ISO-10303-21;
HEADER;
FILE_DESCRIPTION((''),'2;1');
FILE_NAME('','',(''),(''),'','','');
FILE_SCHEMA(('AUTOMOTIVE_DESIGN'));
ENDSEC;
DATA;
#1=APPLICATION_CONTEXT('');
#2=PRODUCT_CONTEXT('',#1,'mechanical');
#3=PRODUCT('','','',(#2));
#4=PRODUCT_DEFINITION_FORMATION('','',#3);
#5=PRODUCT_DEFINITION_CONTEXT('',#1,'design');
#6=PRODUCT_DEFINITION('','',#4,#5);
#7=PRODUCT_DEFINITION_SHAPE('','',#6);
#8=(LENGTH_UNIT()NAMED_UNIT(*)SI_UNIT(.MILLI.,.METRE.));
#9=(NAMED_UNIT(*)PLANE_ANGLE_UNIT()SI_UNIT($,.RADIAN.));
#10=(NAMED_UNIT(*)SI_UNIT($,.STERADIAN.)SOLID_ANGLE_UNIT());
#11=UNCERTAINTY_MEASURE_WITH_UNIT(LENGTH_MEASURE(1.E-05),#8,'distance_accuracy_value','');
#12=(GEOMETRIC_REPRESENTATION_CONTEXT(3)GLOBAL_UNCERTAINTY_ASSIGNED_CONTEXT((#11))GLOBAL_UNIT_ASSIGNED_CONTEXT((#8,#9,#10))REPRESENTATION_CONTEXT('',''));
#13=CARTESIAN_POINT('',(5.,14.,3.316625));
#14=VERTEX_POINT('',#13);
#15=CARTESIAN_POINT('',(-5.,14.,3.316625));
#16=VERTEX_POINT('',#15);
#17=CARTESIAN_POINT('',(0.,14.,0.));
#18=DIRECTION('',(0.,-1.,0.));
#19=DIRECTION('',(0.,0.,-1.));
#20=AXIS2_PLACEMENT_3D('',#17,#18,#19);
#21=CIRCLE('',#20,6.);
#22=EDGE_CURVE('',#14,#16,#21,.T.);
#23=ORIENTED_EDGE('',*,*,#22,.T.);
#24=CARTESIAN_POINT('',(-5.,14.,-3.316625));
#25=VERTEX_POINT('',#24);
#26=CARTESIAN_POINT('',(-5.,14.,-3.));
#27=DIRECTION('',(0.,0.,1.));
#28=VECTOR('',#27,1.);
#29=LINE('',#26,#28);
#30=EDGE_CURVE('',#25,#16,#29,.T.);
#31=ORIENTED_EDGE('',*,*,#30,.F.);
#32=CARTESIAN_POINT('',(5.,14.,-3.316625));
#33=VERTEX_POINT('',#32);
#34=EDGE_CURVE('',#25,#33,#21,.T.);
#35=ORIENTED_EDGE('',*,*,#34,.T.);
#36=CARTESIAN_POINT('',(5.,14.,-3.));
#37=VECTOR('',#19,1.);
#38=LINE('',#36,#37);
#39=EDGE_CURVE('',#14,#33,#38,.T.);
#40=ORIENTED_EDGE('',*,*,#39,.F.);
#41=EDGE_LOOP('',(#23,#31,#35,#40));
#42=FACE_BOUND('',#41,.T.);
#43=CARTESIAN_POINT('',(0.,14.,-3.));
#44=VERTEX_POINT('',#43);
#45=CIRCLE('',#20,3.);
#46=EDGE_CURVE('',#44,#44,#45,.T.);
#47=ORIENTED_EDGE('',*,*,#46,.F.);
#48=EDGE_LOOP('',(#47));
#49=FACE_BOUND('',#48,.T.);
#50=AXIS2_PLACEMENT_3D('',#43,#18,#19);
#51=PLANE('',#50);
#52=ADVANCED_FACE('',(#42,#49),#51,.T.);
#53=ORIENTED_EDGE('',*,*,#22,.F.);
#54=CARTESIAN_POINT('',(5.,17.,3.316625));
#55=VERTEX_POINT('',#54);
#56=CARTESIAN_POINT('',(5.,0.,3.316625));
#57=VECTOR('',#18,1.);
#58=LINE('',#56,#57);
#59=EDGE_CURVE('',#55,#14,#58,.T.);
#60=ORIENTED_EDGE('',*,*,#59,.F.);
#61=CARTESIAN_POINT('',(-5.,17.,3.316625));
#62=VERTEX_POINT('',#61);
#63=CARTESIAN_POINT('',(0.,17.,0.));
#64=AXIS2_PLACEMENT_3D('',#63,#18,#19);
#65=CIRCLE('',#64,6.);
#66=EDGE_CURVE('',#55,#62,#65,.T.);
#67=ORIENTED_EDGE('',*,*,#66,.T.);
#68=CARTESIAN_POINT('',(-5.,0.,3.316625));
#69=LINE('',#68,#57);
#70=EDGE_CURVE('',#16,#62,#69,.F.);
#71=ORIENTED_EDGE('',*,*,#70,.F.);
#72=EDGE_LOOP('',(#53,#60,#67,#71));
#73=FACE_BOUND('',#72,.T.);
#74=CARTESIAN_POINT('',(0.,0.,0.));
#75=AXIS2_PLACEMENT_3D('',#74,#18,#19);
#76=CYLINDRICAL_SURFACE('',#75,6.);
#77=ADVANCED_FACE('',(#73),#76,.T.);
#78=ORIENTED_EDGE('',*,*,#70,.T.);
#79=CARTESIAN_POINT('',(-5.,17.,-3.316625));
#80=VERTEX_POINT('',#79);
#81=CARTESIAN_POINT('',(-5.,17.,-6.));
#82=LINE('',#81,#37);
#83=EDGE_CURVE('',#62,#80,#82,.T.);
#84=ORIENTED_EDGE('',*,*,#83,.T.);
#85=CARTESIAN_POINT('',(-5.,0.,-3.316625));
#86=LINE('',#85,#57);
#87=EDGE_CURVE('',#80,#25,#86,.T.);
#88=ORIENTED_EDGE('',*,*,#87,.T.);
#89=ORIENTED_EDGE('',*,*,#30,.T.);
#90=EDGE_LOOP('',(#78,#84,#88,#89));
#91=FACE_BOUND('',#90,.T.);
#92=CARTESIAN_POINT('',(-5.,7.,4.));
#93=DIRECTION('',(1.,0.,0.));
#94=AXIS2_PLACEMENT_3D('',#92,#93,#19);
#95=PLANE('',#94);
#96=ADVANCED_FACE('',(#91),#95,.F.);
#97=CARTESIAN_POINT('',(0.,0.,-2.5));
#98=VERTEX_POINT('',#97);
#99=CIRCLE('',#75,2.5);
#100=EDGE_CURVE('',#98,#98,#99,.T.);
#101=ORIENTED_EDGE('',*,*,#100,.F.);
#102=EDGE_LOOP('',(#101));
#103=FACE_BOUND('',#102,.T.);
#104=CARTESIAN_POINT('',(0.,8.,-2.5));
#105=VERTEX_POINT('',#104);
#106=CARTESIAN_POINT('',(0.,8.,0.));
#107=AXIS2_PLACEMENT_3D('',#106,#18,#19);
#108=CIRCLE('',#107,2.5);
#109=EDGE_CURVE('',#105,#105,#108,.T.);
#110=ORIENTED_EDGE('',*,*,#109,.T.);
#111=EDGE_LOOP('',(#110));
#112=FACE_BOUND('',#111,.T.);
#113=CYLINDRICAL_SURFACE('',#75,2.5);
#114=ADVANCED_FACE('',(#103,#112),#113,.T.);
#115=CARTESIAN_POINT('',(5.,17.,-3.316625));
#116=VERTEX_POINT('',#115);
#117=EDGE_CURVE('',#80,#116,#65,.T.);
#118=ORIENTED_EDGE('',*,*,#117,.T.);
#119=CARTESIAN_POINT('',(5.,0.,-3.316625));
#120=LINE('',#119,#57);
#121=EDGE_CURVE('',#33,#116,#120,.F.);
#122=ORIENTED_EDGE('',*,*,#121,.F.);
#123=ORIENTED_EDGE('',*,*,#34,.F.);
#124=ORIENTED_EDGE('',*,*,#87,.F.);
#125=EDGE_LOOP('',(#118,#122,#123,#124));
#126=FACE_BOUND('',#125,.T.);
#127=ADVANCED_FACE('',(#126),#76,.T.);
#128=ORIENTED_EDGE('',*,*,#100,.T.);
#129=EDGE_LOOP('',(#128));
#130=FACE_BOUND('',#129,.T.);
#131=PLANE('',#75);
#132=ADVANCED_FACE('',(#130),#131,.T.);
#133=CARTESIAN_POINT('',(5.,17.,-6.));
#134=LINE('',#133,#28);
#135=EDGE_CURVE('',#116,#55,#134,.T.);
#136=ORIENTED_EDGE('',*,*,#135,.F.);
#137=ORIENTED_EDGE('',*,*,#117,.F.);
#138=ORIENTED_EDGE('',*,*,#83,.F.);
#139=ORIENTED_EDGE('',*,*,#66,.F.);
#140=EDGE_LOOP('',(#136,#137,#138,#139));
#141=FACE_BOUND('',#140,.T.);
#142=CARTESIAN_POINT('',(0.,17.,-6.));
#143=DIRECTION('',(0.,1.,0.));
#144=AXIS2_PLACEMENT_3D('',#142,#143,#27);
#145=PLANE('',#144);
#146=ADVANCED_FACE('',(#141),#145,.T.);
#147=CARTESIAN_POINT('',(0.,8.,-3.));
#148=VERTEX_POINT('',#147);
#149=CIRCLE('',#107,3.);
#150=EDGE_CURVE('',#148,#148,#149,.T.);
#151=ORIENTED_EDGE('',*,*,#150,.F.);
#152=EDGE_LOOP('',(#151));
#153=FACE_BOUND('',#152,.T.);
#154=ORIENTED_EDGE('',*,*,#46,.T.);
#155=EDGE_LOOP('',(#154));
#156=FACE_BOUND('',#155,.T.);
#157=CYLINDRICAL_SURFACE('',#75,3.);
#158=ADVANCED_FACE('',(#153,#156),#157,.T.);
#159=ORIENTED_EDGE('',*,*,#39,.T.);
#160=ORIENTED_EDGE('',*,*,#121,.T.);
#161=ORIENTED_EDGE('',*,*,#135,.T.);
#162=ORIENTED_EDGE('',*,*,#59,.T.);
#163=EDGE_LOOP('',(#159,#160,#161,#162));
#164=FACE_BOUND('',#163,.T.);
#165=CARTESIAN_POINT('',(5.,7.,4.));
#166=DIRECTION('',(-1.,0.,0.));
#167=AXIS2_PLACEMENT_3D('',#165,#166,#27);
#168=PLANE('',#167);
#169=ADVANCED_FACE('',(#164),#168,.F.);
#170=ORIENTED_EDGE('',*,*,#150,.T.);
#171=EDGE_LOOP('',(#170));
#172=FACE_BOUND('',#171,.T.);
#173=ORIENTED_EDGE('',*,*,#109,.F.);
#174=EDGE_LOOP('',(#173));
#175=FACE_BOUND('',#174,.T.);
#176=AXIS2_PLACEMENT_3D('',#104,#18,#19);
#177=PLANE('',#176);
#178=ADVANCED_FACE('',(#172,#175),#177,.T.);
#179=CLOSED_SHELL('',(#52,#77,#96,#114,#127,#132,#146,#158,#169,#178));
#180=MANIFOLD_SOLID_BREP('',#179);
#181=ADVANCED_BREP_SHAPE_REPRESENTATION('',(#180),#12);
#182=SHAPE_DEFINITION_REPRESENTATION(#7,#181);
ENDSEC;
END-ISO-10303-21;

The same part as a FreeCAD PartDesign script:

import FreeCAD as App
import Part
import Sketcher
Q = App.Units.Quantity

doc = App.newDocument("Part")
body = doc.addObject("PartDesign::Body", "Body")

# Sketch on YZ plane
sketch1 = body.newObject("Sketcher::SketchObject", "Sketch")
sketch1.AttachmentSupport = (doc.getObject("YZ_Plane"), [""])
sketch1.MapMode = "FlatFace"
sketch1.addGeometry(Part.LineSegment(App.Vector(0, 0, 0), App.Vector(0, -2.5, 0)), False)
sketch1.addGeometry(Part.LineSegment(App.Vector(0, -2.5, 0), App.Vector(8, -2.5, 0)), False)
sketch1.addGeometry(Part.LineSegment(App.Vector(8, -2.5, 0), App.Vector(8, -3, 0)), False)
sketch1.addGeometry(Part.LineSegment(App.Vector(8, -3, 0), App.Vector(14, -3, 0)), False)
sketch1.addGeometry(Part.LineSegment(App.Vector(14, -3, 0), App.Vector(14, -6, 0)), False)
sketch1.addGeometry(Part.LineSegment(App.Vector(14, -6, 0), App.Vector(17, -6, 0)), False)
sketch1.addGeometry(Part.LineSegment(App.Vector(17, -6, 0), App.Vector(17, 0, 0)), False)
sketch1.addGeometry(Part.LineSegment(App.Vector(17, 0, 0), App.Vector(0, 0, 0)), False)
sketch1.addConstraint(Sketcher.Constraint("Coincident", 0, 2, 1, 1))
sketch1.addConstraint(Sketcher.Constraint("Coincident", 1, 2, 2, 1))
sketch1.addConstraint(Sketcher.Constraint("Coincident", 2, 2, 3, 1))
sketch1.addConstraint(Sketcher.Constraint("Coincident", 3, 2, 4, 1))
sketch1.addConstraint(Sketcher.Constraint("Coincident", 4, 2, 5, 1))
sketch1.addConstraint(Sketcher.Constraint("Coincident", 5, 2, 6, 1))
sketch1.addConstraint(Sketcher.Constraint("Coincident", 6, 2, 7, 1))
sketch1.addConstraint(Sketcher.Constraint("Coincident", 7, 2, 0, 1))
sketch1.addConstraint(Sketcher.Constraint("Vertical", 0))
sketch1.addConstraint(Sketcher.Constraint("Horizontal", 1))
sketch1.addConstraint(Sketcher.Constraint("Vertical", 2))
sketch1.addConstraint(Sketcher.Constraint("Horizontal", 3))
sketch1.addConstraint(Sketcher.Constraint("Vertical", 4))
sketch1.addConstraint(Sketcher.Constraint("Horizontal", 5))
sketch1.addConstraint(Sketcher.Constraint("Vertical", 6))
sketch1.addConstraint(Sketcher.Constraint("Horizontal", 7))
sketch1.addConstraint(Sketcher.Constraint("Coincident", 7, 2, -1, 1))
sketch1.addConstraint(Sketcher.Constraint("Equal", 5, 4))
sketch1.addConstraint(Sketcher.Constraint("Equal", 3, 6))
sketch1.addConstraint(Sketcher.Constraint("DistanceX", 1, 1, 1, 2, Q("8 mm")))
sketch1.addConstraint(Sketcher.Constraint("DistanceX", 3, 1, 3, 2, Q("6 mm")))
sketch1.addConstraint(Sketcher.Constraint("DistanceX", 5, 1, 5, 2, Q("3 mm")))
sketch1.addConstraint(Sketcher.Constraint("DistanceY", 0, 2, 0, 1, Q("2.5 mm")))
revolution = body.newObject("PartDesign::Revolution", "Revolution")
revolution.Profile = sketch1
revolution.ReferenceAxis = (sketch1, ["H_Axis"])
revolution.Angle = 360

# Sketch on XZ plane
sketch2 = body.newObject("Sketcher::SketchObject", "Sketch001")
sketch2.AttachmentSupport = (doc.getObject("XZ_Plane"), [""])
sketch2.MapMode = "FlatFace"
sketch2.AttachmentOffset = App.Placement(App.Vector(0, 0, -17), App.Rotation())
sketch2.addGeometry(Part.LineSegment(App.Vector(-7, -4, 0), App.Vector(-7, 4, 0)), False)
sketch2.addGeometry(Part.LineSegment(App.Vector(-7, 4, 0), App.Vector(-5, 4, 0)), False)
sketch2.addGeometry(Part.LineSegment(App.Vector(-5, 4, 0), App.Vector(-5, -4, 0)), False)
sketch2.addGeometry(Part.LineSegment(App.Vector(-5, -4, 0), App.Vector(-7, -4, 0)), False)
sketch2.addGeometry(Part.LineSegment(App.Vector(5, -4, 0), App.Vector(5, 4, 0)), False)
sketch2.addGeometry(Part.LineSegment(App.Vector(5, 4, 0), App.Vector(7, 4, 0)), False)
sketch2.addGeometry(Part.LineSegment(App.Vector(7, 4, 0), App.Vector(7, -4, 0)), False)
sketch2.addGeometry(Part.LineSegment(App.Vector(7, -4, 0), App.Vector(5, -4, 0)), False)
sketch2.addConstraint(Sketcher.Constraint("Coincident", 0, 2, 1, 1))
sketch2.addConstraint(Sketcher.Constraint("Coincident", 1, 2, 2, 1))
sketch2.addConstraint(Sketcher.Constraint("Coincident", 2, 2, 3, 1))
sketch2.addConstraint(Sketcher.Constraint("Coincident", 3, 2, 0, 1))
sketch2.addConstraint(Sketcher.Constraint("Coincident", 4, 2, 5, 1))
sketch2.addConstraint(Sketcher.Constraint("Coincident", 5, 2, 6, 1))
sketch2.addConstraint(Sketcher.Constraint("Coincident", 6, 2, 7, 1))
sketch2.addConstraint(Sketcher.Constraint("Coincident", 7, 2, 4, 1))
sketch2.addConstraint(Sketcher.Constraint("Vertical", 0))
sketch2.addConstraint(Sketcher.Constraint("Horizontal", 1))
sketch2.addConstraint(Sketcher.Constraint("Vertical", 2))
sketch2.addConstraint(Sketcher.Constraint("Horizontal", 3))
sketch2.addConstraint(Sketcher.Constraint("Vertical", 4))
sketch2.addConstraint(Sketcher.Constraint("Horizontal", 5))
sketch2.addConstraint(Sketcher.Constraint("Vertical", 6))
sketch2.addConstraint(Sketcher.Constraint("Horizontal", 7))
sketch2.addConstraint(Sketcher.Constraint("Symmetric", 2, 2, 4, 2, -1, 1))
sketch2.addConstraint(Sketcher.Constraint("Symmetric", 0, 2, 6, 2, -1, 1))
sketch2.addConstraint(Sketcher.Constraint("Horizontal", 1, 2, 4, 2))
sketch2.addConstraint(Sketcher.Constraint("DistanceX", 1, 1, 1, 2, Q("2 mm")))
sketch2.addConstraint(Sketcher.Constraint("DistanceY", 0, 1, 0, 2, Q("8 mm")))
sketch2.addConstraint(Sketcher.Constraint("DistanceX", 0, 2, -1, 1, Q("7 mm")))
pocket1 = body.newObject("PartDesign::Pocket", "Pocket")
pocket1.Profile = sketch2
pocket1.Length = 10
pocket1.Reversed = True

doc.recompute()
